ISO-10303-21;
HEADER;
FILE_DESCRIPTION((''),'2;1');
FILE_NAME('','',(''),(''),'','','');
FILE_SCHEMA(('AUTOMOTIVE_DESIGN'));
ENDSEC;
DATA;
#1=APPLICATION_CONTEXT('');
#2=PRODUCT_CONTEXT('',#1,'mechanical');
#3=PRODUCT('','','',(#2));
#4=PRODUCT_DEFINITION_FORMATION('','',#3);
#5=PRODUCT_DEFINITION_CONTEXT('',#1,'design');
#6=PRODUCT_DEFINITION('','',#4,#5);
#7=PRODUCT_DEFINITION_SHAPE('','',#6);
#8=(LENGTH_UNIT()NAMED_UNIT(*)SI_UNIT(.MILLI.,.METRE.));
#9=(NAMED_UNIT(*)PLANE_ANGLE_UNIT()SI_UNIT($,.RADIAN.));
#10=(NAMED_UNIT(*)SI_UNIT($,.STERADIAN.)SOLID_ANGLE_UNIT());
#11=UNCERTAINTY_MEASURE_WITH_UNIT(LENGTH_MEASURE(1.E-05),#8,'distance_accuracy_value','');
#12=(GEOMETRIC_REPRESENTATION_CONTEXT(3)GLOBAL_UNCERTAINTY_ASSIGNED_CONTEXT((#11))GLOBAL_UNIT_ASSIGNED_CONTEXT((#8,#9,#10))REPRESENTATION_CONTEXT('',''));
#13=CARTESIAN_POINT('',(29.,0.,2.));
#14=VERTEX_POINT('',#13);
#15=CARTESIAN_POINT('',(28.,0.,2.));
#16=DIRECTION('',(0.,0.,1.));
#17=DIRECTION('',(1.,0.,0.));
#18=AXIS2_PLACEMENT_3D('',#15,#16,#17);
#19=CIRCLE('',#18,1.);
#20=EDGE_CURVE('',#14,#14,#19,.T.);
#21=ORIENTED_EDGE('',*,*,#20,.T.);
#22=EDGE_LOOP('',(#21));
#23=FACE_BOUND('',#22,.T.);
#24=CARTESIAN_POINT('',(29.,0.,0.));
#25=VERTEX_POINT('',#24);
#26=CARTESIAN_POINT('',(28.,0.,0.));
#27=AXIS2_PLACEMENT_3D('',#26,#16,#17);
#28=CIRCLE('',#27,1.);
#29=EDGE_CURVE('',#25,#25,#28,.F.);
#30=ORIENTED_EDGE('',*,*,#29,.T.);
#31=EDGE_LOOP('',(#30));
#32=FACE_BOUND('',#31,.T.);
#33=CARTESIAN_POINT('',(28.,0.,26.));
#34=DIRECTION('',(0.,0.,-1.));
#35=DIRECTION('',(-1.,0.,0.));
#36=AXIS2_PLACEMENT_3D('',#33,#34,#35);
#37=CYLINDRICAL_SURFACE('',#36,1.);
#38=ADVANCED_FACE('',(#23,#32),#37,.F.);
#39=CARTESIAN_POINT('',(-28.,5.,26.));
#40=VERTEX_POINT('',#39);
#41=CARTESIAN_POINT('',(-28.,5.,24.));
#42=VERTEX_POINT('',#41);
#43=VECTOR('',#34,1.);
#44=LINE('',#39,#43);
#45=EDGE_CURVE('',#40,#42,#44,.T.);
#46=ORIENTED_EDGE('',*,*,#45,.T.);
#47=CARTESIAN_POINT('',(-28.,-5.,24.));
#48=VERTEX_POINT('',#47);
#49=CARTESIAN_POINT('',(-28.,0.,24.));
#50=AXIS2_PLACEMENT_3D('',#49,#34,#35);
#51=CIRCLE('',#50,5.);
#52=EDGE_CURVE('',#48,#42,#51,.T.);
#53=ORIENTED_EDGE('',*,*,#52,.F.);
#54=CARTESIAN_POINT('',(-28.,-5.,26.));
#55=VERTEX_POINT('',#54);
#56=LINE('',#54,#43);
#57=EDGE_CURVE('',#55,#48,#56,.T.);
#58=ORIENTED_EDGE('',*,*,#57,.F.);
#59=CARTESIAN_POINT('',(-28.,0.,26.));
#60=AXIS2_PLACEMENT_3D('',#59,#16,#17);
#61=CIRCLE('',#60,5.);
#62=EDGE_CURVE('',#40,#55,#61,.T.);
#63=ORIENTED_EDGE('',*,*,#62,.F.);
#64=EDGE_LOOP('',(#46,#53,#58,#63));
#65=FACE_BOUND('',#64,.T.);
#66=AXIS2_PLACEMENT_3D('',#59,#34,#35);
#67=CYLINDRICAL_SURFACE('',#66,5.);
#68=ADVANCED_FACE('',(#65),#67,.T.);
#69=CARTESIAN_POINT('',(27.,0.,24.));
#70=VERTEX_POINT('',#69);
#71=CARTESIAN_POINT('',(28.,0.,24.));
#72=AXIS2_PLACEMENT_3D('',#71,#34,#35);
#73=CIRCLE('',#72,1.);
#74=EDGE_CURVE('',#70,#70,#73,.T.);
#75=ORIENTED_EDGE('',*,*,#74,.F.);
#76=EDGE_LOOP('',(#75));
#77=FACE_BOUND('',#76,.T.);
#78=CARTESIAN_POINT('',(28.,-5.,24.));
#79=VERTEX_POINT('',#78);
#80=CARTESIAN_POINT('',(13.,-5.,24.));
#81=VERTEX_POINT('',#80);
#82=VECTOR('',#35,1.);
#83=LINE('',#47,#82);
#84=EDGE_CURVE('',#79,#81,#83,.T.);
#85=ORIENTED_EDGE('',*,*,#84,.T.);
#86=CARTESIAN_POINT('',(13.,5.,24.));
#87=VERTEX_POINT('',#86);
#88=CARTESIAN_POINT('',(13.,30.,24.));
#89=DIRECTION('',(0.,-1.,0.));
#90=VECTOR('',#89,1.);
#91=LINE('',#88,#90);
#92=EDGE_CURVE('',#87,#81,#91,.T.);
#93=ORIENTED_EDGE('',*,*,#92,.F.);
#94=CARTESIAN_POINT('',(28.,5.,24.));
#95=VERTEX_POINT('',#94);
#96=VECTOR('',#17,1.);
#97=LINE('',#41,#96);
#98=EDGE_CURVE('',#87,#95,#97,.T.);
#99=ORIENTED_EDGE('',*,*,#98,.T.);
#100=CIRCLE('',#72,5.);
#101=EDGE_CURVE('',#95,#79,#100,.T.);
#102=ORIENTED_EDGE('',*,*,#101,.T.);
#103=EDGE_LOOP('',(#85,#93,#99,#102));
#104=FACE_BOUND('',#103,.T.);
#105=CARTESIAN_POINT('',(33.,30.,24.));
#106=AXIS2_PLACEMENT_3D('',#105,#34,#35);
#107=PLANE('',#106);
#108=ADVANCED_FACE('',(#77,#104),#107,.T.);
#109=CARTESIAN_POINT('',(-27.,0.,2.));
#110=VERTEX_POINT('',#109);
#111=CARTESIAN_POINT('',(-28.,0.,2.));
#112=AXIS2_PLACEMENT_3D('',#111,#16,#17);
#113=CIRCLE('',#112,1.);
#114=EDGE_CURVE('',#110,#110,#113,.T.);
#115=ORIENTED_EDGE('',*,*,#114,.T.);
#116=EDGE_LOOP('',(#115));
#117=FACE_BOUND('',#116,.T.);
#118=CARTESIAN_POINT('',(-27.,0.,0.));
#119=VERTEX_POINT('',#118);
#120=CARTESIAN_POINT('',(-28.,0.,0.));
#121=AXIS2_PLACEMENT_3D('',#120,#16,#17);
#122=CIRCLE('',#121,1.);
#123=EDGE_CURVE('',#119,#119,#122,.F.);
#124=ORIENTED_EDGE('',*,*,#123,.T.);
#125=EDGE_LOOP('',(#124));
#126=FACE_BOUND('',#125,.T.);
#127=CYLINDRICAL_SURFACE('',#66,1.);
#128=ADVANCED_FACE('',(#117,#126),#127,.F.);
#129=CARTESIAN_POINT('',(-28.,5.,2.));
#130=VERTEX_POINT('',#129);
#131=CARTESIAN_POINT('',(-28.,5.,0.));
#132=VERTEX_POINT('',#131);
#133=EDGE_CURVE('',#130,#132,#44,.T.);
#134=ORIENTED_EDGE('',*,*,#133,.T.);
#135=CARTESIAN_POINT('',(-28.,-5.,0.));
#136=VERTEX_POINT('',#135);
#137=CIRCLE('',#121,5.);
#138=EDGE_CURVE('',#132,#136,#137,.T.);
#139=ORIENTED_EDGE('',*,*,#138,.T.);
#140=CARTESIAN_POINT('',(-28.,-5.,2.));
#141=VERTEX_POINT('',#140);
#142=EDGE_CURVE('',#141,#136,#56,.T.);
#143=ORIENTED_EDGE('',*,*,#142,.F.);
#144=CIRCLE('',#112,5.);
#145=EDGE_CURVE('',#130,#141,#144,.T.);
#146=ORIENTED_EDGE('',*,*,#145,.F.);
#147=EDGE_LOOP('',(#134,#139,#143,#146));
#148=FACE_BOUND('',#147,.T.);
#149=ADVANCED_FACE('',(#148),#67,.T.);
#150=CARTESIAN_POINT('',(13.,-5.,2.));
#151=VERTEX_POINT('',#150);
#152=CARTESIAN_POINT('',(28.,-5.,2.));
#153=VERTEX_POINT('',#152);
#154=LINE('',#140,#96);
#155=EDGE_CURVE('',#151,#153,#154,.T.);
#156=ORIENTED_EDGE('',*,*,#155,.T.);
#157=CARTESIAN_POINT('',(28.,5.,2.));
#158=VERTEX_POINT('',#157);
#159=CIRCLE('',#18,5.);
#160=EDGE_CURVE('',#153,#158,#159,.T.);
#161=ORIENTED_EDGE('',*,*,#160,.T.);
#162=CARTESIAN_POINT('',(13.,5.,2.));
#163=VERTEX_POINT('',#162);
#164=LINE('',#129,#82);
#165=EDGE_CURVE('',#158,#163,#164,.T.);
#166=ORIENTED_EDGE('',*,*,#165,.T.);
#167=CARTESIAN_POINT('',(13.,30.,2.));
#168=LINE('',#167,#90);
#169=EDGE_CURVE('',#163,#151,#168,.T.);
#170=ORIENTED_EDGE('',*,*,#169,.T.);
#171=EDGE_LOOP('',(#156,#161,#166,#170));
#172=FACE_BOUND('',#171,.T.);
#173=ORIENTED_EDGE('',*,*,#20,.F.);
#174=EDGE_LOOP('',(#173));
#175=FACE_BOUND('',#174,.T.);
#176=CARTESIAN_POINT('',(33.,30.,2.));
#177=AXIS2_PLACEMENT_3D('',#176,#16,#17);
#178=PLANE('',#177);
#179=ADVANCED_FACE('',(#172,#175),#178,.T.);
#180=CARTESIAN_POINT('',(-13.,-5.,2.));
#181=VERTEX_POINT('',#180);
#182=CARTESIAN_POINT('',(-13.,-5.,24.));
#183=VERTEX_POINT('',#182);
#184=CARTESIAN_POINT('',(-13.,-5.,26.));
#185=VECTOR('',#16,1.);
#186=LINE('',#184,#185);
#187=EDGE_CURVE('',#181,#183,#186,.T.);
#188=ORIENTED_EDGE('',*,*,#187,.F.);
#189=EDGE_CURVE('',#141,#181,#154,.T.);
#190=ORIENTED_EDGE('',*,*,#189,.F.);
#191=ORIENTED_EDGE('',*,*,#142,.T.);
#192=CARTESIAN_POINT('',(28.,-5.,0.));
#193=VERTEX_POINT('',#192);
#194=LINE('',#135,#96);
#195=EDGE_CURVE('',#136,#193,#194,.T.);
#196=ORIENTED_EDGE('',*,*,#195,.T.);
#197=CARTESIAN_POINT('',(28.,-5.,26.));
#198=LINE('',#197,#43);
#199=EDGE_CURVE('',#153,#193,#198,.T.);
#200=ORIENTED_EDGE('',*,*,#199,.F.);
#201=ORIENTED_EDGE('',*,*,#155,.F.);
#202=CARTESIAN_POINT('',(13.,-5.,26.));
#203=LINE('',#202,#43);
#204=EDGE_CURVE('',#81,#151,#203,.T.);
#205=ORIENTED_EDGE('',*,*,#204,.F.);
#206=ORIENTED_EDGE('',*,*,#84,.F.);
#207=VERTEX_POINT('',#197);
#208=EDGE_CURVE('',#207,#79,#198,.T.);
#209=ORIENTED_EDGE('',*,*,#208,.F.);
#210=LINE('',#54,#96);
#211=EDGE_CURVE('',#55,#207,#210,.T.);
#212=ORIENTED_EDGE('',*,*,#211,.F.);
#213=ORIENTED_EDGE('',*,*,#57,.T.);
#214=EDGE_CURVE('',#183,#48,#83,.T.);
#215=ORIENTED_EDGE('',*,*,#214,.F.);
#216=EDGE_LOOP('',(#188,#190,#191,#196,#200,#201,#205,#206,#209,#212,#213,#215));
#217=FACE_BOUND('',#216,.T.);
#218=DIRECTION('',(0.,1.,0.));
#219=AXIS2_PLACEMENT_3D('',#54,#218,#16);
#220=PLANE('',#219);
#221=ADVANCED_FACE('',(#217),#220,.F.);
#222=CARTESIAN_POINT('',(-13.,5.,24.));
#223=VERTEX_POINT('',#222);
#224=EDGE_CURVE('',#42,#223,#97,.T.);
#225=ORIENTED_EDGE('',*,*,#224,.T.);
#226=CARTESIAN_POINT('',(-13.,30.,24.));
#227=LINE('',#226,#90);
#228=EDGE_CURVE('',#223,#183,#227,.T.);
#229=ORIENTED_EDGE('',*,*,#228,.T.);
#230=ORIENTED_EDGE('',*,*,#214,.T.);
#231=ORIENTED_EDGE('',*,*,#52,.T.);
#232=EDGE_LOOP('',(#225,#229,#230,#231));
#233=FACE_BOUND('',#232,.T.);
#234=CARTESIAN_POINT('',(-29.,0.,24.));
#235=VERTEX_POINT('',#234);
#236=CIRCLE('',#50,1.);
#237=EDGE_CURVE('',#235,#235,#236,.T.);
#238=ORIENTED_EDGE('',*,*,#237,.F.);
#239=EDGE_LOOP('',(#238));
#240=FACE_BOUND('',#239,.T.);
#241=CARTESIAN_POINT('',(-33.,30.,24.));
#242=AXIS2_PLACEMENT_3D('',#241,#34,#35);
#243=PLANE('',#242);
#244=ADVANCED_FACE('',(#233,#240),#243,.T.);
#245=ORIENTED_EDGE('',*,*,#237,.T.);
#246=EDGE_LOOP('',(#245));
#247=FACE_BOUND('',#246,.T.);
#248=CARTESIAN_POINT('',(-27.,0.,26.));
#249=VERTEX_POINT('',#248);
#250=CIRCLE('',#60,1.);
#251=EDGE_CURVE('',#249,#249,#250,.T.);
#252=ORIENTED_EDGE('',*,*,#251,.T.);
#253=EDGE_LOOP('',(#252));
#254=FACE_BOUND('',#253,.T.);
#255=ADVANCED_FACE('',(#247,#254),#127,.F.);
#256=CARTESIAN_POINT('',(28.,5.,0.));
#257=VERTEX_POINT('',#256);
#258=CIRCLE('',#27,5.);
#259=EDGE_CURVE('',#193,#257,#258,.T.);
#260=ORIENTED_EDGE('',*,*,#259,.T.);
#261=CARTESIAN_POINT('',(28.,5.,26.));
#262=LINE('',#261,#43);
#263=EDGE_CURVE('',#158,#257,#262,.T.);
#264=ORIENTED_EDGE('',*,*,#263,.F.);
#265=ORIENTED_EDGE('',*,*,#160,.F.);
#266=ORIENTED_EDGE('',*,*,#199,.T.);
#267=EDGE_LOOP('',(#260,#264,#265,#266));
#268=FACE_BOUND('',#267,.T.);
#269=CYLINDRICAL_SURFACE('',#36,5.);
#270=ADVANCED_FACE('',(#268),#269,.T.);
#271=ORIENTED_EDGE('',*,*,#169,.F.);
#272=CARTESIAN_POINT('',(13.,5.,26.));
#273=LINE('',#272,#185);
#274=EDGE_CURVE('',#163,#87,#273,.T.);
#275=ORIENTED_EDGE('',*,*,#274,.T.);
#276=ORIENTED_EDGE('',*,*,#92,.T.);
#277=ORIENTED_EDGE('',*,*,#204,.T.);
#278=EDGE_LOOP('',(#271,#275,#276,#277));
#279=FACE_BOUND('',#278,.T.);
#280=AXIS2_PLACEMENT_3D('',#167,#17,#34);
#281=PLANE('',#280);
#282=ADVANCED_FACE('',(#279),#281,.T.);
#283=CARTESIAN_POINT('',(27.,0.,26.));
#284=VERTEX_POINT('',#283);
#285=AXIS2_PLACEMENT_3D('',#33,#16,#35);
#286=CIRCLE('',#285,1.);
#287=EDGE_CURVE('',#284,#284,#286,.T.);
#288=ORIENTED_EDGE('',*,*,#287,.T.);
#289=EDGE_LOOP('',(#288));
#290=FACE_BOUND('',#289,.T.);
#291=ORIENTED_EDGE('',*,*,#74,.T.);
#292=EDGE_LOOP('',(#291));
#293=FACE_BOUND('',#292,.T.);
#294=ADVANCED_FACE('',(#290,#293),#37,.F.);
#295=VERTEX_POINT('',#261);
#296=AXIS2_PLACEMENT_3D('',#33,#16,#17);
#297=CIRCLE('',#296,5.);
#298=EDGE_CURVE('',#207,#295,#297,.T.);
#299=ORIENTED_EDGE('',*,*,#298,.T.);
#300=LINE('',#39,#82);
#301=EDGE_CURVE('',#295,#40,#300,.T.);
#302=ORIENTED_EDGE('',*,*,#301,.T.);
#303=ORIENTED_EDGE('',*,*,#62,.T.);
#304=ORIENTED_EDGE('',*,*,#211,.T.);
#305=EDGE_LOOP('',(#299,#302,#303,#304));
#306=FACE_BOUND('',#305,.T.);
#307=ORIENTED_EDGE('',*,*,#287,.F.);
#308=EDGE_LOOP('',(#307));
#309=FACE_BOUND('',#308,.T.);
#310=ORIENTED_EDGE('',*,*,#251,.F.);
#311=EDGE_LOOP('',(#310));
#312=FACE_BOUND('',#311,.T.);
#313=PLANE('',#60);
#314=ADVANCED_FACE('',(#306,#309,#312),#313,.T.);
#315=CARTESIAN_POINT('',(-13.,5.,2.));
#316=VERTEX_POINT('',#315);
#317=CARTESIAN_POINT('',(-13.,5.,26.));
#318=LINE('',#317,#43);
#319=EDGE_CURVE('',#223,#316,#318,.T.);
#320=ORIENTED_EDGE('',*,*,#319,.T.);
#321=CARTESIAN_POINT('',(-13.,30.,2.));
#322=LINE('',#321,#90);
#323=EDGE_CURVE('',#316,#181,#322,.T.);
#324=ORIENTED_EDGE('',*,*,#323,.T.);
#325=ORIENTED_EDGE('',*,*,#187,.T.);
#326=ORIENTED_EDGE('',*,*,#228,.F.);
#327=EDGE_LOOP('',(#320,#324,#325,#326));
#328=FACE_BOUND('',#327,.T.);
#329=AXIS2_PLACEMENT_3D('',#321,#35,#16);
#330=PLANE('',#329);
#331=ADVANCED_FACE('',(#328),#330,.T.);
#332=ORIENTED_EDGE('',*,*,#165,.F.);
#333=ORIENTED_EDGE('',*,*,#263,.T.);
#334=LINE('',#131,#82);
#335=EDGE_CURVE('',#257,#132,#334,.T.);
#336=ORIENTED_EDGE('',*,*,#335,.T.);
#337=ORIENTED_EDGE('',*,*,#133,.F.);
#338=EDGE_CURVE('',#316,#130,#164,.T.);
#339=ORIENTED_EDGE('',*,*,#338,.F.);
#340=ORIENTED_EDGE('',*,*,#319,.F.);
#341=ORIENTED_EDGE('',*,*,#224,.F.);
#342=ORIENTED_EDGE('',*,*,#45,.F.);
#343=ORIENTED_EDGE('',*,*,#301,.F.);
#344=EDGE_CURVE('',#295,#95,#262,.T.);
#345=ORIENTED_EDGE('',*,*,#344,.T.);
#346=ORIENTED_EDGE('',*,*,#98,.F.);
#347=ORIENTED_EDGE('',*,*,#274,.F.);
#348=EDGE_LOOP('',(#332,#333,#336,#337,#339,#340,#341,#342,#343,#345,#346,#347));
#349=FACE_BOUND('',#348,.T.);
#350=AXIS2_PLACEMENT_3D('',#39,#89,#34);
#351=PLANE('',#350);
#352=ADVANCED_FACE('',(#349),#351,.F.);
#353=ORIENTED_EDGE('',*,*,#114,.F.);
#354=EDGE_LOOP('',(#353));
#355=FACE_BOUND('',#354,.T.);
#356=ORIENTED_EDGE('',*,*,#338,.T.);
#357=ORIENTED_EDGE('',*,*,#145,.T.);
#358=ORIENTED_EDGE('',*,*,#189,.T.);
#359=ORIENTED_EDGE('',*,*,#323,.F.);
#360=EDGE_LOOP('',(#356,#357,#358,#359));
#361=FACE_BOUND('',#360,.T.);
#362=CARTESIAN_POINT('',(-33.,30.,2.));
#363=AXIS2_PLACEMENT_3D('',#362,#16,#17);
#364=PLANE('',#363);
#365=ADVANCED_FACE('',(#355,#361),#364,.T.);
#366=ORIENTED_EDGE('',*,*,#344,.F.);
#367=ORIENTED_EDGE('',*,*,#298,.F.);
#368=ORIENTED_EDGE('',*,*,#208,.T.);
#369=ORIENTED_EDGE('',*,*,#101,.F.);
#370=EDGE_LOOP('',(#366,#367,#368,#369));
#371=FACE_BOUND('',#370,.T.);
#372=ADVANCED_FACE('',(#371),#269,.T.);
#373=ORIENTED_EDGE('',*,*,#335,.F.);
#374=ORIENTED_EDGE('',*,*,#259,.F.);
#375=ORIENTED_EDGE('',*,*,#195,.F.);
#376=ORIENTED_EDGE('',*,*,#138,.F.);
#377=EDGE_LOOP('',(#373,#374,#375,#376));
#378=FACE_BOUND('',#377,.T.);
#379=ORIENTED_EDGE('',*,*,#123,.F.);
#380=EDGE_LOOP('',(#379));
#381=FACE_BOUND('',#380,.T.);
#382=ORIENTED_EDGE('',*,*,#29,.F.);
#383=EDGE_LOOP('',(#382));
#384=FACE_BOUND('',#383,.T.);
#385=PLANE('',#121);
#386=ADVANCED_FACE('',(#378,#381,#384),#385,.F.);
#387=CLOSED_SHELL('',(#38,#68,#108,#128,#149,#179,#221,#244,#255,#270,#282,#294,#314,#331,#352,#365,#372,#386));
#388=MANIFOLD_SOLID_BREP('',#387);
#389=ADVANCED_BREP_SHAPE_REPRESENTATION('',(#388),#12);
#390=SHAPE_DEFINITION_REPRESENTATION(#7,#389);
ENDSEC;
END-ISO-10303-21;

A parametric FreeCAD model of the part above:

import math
import FreeCAD as App
import Part
import Sketcher

V = App.Vector
Q = App.Units.Quantity

doc = App.newDocument("Part")
params = doc.addObject("Spreadsheet::Sheet", "Params")
for row, (alias, value) in enumerate([
    ("sketch1_radius", "5 mm"),
    ("sketch1_width", "56 mm"),
    ("pad1_length", "26 mm"),
    ("sketch2_diameter", "2 mm"),
    ("sketch3_width", "20 mm"),
    ("sketch3_height", "22 mm"),
], start=1):
    params.set(f"A{row}", alias)
    params.set(f"B{row}", "=" + value)
    params.setAlias(f"B{row}", alias)

body = doc.addObject("PartDesign::Body", "Body")

# Sketch on XY plane
sketch1 = doc.addObject("Sketcher::SketchObject", "Sketch")
body.addObject(sketch1)
sketch1.AttachmentSupport = (doc.XY_Plane, [""])
sketch1.MapMode = "FlatFace"
sketch1.addGeometry([
    Part.LineSegment(V(28, 5, 0), V(-28, 5, 0)),
    Part.ArcOfCircle(Part.Circle(V(-28, 0, 0), V(0, 0, 1), 5), math.radians(90), math.radians(270)),
    Part.LineSegment(V(-28, -5, 0), V(28, -5, 0)),
    Part.ArcOfCircle(Part.Circle(V(28, 0, 0), V(0, 0, 1), 5), math.radians(-90), math.radians(90)),
], False)
sketch1.addConstraint([
    Sketcher.Constraint("Tangent", 0, 2, 1, 1),
    Sketcher.Constraint("Tangent", 1, 2, 2, 1),
    Sketcher.Constraint("Tangent", 2, 2, 3, 1),
    Sketcher.Constraint("Tangent", 3, 2, 0, 1),
    Sketcher.Constraint("Horizontal", 0),
    Sketcher.Constraint("Horizontal", 2),
    Sketcher.Constraint("Symmetric", 1, 3, 3, 3, -1, 1),
    Sketcher.Constraint("Radius", 1, Q("5 mm")),
    Sketcher.Constraint("DistanceX", 0, 2, 0, 1, Q("56 mm")),
])
sketch1.setExpression("Constraints[7]", "Params.sketch1_radius")
sketch1.setExpression("Constraints[8]", "Params.sketch1_width")
pad1 = doc.addObject("PartDesign::Pad", "Pad")
body.addObject(pad1)
pad1.Profile = sketch1
pad1.setExpression("Length", "Params.pad1_length")

# Sketch on XY plane
sketch2 = doc.addObject("Sketcher::SketchObject", "Sketch001")
body.addObject(sketch2)
sketch2.AttachmentSupport = (doc.XY_Plane, [""])
sketch2.MapMode = "FlatFace"
sketch2.addGeometry([
    Part.Circle(V(-28, 0, 0), V(0, 0, 1), 1),
    Part.Circle(V(28, 0, 0), V(0, 0, 1), 1),
], False)
sketch2.addConstraint([
    Sketcher.Constraint("Equal", 0, 1),
    Sketcher.Constraint("Symmetric", 0, 3, 1, 3, -1, 1),
    Sketcher.Constraint("PointOnObject", 0, 3, -1),
    Sketcher.Constraint("Diameter", 0, Q("2 mm")),
    Sketcher.Constraint("DistanceX", 0, 3, -1, 1, Q("28 mm")),
])
sketch2.setExpression("Constraints[3]", "Params.sketch2_diameter")
pocket1 = doc.addObject("PartDesign::Pocket", "Pocket")
body.addObject(pocket1)
pocket1.Profile = sketch2
pocket1.Type = "ThroughAll"
pocket1.Midplane = True

# Sketch on XZ plane
sketch3 = doc.addObject("Sketcher::SketchObject", "Sketch002")
body.addObject(sketch3)
sketch3.AttachmentSupport = (doc.XZ_Plane, [""])
sketch3.MapMode = "FlatFace"
sketch3.addGeometry([
    Part.LineSegment(V(-33, 2, 0), V(-33, 24, 0)),  # 0
    Part.LineSegment(V(-33, 24, 0), V(-13, 24, 0)),  # 1
    Part.LineSegment(V(-13, 24, 0), V(-13, 2, 0)),  # 2
    Part.LineSegment(V(-13, 2, 0), V(-33, 2, 0)),  # 3
    Part.LineSegment(V(13, 2, 0), V(13, 24, 0)),  # 4
    Part.LineSegment(V(13, 24, 0), V(33, 24, 0)),  # 5
    Part.LineSegment(V(33, 24, 0), V(33, 2, 0)),  # 6
    Part.LineSegment(V(33, 2, 0), V(13, 2, 0)),  # 7
], False)
sketch3.addConstraint([
    Sketcher.Constraint("Coincident", 0, 2, 1, 1),
    Sketcher.Constraint("Coincident", 1, 2, 2, 1),
    Sketcher.Constraint("Coincident", 2, 2, 3, 1),
    Sketcher.Constraint("Coincident", 3, 2, 0, 1),
    Sketcher.Constraint("Coincident", 4, 2, 5, 1),
    Sketcher.Constraint("Coincident", 5, 2, 6, 1),
    Sketcher.Constraint("Coincident", 6, 2, 7, 1),
    Sketcher.Constraint("Coincident", 7, 2, 4, 1),
    Sketcher.Constraint("Vertical", 0),
    Sketcher.Constraint("Horizontal", 1),
    Sketcher.Constraint("Vertical", 2),
    Sketcher.Constraint("Horizontal", 3),
    Sketcher.Constraint("Vertical", 4),
    Sketcher.Constraint("Horizontal", 5),
    Sketcher.Constraint("Vertical", 6),
    Sketcher.Constraint("Horizontal", 7),
    Sketcher.Constraint("Symmetric", 1, 2, 4, 2, -2),
    Sketcher.Constraint("Symmetric", 3, 2, 6, 2, -2),
    Sketcher.Constraint("DistanceX", 1, 1, 1, 2, Q("20 mm")),
    Sketcher.Constraint("DistanceY", 0, 1, 0, 2, Q("22 mm")),
    Sketcher.Constraint("DistanceX", 0, 2, -1, 1, Q("33 mm")),
    Sketcher.Constraint("DistanceY", -1, 1, 0, 2, Q("24 mm")),
])
sketch3.setExpression("Constraints[18]", "Params.sketch3_width")
sketch3.setExpression("Constraints[19]", "Params.sketch3_height")
pocket2 = doc.addObject("PartDesign::Pocket", "Pocket001")
body.addObject(pocket2)
pocket2.Profile = sketch3
pocket2.Type = "ThroughAll"
pocket2.Midplane = True

doc.recompute()
